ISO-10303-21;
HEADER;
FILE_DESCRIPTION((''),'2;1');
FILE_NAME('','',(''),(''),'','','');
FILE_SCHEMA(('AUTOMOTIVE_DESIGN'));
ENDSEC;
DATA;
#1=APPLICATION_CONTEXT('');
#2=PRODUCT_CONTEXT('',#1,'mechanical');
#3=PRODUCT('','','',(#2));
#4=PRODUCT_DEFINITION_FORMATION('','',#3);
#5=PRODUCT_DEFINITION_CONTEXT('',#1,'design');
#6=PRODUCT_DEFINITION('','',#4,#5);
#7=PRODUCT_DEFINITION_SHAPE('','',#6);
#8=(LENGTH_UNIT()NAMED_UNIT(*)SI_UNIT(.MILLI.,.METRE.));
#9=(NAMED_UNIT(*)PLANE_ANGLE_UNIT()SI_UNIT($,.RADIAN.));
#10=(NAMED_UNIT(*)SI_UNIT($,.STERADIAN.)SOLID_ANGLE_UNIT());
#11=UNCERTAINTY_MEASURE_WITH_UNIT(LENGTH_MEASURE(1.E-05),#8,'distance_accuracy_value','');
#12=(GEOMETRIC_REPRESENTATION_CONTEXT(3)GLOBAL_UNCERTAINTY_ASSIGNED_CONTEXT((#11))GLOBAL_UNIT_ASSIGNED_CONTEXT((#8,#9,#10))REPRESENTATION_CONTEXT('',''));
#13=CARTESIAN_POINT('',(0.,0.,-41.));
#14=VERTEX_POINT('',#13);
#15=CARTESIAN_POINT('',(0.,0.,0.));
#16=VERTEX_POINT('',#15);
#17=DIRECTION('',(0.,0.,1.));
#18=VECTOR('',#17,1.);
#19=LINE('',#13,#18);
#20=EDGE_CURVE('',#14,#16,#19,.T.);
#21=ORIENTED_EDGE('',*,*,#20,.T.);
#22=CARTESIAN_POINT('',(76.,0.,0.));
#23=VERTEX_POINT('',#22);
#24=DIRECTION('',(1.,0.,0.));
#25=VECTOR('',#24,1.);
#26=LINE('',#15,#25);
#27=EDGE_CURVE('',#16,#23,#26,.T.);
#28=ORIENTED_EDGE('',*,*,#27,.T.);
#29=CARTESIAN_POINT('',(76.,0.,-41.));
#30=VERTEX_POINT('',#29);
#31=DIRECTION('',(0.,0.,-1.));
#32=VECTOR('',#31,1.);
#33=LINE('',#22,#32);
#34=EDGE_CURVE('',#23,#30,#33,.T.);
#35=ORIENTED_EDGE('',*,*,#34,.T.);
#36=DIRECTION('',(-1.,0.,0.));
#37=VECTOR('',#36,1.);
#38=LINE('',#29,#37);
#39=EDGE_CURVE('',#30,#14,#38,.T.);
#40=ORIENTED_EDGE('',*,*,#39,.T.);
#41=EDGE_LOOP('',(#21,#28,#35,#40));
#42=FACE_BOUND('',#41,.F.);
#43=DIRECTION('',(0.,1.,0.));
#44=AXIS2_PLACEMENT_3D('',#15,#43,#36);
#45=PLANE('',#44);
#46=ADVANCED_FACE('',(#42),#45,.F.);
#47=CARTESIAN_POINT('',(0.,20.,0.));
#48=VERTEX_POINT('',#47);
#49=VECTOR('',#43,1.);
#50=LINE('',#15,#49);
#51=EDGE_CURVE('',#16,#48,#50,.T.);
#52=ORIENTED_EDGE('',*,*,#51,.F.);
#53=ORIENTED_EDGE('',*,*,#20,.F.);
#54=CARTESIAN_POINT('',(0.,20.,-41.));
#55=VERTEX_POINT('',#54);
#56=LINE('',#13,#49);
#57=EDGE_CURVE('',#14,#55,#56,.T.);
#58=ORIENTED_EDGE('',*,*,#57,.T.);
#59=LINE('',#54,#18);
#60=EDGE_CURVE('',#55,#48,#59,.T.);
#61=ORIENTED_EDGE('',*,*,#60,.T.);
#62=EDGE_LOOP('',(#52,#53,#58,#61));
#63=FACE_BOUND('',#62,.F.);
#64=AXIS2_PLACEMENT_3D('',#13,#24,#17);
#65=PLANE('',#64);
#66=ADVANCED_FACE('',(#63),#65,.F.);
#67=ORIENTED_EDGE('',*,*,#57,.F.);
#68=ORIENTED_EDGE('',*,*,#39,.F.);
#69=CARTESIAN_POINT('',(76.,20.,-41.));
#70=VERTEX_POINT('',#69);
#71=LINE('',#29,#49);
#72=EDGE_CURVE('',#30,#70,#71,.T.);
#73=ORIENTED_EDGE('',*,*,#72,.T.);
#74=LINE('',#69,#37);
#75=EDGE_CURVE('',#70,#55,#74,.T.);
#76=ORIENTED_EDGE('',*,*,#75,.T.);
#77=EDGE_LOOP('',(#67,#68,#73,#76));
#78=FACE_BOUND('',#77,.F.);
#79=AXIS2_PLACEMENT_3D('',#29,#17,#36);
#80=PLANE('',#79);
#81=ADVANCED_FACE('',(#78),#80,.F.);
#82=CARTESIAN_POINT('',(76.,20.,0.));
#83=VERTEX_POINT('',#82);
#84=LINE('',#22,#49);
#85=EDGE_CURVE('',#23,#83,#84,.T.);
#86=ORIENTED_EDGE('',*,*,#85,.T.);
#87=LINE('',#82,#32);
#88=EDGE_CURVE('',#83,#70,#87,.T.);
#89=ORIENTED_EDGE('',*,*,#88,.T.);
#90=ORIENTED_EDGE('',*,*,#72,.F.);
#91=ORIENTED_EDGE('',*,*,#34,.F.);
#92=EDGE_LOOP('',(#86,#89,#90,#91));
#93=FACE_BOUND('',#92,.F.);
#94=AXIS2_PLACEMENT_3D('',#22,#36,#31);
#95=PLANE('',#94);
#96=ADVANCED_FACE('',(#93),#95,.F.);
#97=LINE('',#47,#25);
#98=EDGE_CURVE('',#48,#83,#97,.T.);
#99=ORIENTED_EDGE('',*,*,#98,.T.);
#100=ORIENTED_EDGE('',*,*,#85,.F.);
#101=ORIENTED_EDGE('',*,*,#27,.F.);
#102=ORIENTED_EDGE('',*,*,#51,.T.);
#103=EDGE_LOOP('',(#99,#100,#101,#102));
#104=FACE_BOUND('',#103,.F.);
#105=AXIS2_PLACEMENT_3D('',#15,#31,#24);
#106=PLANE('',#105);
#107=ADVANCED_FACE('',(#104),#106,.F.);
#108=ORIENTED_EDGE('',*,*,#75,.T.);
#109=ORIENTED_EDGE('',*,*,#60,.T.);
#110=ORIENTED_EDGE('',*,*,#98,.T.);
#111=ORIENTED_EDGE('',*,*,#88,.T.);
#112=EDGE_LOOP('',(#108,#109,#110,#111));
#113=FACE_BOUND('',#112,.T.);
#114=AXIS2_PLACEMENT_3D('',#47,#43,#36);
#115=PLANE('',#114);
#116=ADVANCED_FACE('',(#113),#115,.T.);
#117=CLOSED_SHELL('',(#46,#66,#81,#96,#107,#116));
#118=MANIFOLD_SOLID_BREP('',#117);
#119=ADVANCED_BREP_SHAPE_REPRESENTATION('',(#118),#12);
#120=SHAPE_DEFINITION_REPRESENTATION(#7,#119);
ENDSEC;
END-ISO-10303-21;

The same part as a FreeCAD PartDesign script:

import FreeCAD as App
import Part
import Sketcher

V = App.Vector

doc = App.newDocument("Part")
body = doc.addObject("PartDesign::Body", "Body")

# Sketch on XZ plane
sketch1 = body.newObject("Sketcher::SketchObject", "Sketch")
sketch1.AttachmentSupport = (doc.getObject("XZ_Plane"), [""])
sketch1.MapMode = "FlatFace"
sketch1.addGeometry(Part.LineSegment(V(0, -41, 0), V(0, 0, 0)), False)
sketch1.addGeometry(Part.LineSegment(V(0, 0, 0), V(76, 0, 0)), False)
sketch1.addGeometry(Part.LineSegment(V(76, 0, 0), V(76, -41, 0)), False)
sketch1.addGeometry(Part.LineSegment(V(76, -41, 0), V(0, -41, 0)), False)
sketch1.addConstraint(Sketcher.Constraint("Coincident", 0, 2, 1, 1))
sketch1.addConstraint(Sketcher.Constraint("Coincident", 1, 2, 2, 1))
sketch1.addConstraint(Sketcher.Constraint("Coincident", 2, 2, 3, 1))
sketch1.addConstraint(Sketcher.Constraint("Coincident", 3, 2, 0, 1))
sketch1.addConstraint(Sketcher.Constraint("Vertical", 0))
sketch1.addConstraint(Sketcher.Constraint("Horizontal", 1))
sketch1.addConstraint(Sketcher.Constraint("Vertical", 2))
sketch1.addConstraint(Sketcher.Constraint("Horizontal", 3))
sketch1.addConstraint(Sketcher.Constraint("Coincident", 0, 2, -1, 1))
sketch1.addConstraint(Sketcher.Constraint("DistanceX", 1, 1, 1, 2, 76.0))
sketch1.addConstraint(Sketcher.Constraint("DistanceY", 0, 1, 0, 2, 41.0))
pad1 = body.newObject("PartDesign::Pad", "Pad")
pad1.Profile = sketch1
pad1.Length = 20
pad1.Reversed = True

doc.recompute()
